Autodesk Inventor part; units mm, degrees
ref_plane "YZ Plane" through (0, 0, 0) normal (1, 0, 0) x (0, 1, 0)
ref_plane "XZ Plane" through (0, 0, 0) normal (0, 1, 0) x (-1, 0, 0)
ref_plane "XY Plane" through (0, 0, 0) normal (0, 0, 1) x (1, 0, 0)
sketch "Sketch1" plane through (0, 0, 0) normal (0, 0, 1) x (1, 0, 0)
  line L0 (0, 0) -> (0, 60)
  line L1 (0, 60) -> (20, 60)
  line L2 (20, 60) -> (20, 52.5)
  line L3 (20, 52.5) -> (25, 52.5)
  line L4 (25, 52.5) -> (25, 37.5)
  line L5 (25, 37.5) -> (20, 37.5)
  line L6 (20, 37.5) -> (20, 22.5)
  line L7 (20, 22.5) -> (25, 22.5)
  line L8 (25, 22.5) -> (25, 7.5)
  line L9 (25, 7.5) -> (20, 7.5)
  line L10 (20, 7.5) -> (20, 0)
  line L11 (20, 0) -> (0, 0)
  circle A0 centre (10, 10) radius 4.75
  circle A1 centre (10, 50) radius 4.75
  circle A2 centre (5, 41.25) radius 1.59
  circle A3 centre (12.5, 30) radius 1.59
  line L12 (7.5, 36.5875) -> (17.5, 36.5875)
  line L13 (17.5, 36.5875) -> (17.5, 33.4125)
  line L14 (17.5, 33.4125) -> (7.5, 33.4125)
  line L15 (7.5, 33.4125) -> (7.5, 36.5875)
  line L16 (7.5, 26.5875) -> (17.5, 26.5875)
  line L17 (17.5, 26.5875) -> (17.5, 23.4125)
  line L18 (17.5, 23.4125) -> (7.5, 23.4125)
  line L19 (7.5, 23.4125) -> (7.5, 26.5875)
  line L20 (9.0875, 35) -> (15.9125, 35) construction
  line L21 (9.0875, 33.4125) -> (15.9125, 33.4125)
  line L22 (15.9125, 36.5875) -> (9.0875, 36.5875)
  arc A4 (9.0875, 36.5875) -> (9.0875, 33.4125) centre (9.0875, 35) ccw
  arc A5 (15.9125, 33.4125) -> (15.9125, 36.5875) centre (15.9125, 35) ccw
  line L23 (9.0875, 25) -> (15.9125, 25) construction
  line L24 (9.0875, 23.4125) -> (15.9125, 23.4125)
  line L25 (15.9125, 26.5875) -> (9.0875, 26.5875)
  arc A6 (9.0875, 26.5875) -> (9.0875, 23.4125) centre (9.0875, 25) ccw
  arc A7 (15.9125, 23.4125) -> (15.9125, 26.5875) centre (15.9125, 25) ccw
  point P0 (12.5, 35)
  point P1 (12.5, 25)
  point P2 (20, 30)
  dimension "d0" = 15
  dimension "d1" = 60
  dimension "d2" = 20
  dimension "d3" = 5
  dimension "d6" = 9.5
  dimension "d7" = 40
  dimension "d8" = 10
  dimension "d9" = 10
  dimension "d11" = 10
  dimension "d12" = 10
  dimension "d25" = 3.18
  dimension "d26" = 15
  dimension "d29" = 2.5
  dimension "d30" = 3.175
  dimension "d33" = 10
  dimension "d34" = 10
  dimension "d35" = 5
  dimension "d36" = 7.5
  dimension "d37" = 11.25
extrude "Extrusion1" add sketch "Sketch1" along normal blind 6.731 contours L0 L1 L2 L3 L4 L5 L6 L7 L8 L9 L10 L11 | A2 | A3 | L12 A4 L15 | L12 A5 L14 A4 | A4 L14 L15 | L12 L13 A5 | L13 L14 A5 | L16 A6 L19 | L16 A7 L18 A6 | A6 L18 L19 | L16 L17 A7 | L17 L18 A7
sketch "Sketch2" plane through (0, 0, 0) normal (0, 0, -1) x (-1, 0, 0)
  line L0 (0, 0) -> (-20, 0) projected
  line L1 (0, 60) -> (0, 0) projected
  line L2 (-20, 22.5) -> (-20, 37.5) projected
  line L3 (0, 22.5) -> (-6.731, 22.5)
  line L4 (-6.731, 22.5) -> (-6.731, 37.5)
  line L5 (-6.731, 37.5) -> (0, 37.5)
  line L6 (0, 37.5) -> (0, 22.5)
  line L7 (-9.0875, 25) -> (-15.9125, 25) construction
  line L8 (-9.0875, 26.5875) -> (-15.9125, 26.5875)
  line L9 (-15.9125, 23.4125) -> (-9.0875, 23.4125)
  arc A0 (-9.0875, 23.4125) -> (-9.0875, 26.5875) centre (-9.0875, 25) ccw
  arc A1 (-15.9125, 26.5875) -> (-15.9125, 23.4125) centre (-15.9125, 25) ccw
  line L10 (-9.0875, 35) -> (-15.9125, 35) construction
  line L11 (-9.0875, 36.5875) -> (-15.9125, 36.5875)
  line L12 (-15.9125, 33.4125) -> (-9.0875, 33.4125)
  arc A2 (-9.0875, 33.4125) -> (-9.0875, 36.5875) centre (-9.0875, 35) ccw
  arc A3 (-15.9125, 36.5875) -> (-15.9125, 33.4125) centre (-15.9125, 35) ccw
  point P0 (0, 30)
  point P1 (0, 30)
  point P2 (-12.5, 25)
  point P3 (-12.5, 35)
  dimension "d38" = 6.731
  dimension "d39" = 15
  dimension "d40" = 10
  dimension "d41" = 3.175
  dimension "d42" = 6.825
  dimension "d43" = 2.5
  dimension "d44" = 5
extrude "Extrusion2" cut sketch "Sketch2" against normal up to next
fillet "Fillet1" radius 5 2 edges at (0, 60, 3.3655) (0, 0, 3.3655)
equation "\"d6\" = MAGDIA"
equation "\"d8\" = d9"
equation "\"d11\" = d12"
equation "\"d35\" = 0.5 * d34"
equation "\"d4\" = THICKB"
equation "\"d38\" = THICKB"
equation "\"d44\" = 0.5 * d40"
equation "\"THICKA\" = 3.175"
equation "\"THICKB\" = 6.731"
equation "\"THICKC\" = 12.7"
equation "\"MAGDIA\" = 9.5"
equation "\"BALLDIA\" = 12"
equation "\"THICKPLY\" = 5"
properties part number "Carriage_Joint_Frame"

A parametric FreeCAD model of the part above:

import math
import FreeCAD as App
import Part
import Sketcher


def edges_at(feature, points):
    """Names of the edges that pass closest to the given points."""
    edges = feature.Shape.Edges
    near = lambda p: min(range(len(edges)), key=lambda i: edges[i].distToShape(Part.Vertex(*p))[0])
    return sorted({f"Edge{near(p) + 1}" for p in points})


def add_polygon(sketch, points):
    """Adds a closed chain of lines whose ends are joined by coincident constraints."""
    first, n = sketch.GeometryCount, len(points)
    for a, b in zip(points, points[1:] + points[:1]):
        sketch.addGeometry(Part.LineSegment(App.Vector(*a, 0), App.Vector(*b, 0)), False)
    for i in range(n):
        sketch.addConstraint(Sketcher.Constraint("Coincident", first + i, 2, first + (i + 1) % n, 1))

doc = App.newDocument("Part")
body = doc.addObject("PartDesign::Body", "Body")

# Sketch on XY plane
sketch1 = body.newObject("Sketcher::SketchObject", "Sketch")
sketch1.AttachmentSupport = (doc.getObject("XY_Plane"), [""])
sketch1.MapMode = "FlatFace"
add_polygon(sketch1, [(0, 60), (0, 0), (20, 0), (20, 7.5), (25, 7.5), (25, 22.5), (20, 22.5), (20, 37.5), (25, 37.5), (25, 52.5), (20, 52.5), (20, 60)])  # lines 0-11
sketch1.addGeometry(Part.Circle(App.Vector(10, 10, 0), App.Vector(0, 0, 1), 4.8), False)  # 12
sketch1.addGeometry(Part.Circle(App.Vector(10, 50, 0), App.Vector(0, 0, 1), 4.8), False)  # 13
sketch1.addConstraint([
    Sketcher.Constraint("Vertical", 0),
    Sketcher.Constraint("Horizontal", 1),
    Sketcher.Constraint("Vertical", 2),
    Sketcher.Constraint("Horizontal", 3),
    Sketcher.Constraint("Vertical", 4),
    Sketcher.Constraint("Horizontal", 5),
    Sketcher.Constraint("Vertical", 6),
    Sketcher.Constraint("Horizontal", 7),
    Sketcher.Constraint("Vertical", 8),
    Sketcher.Constraint("Horizontal", 9),
    Sketcher.Constraint("Vertical", 10),
    Sketcher.Constraint("Horizontal", 11),
    Sketcher.Constraint("Coincident", 0, 2, -1, 1),
    Sketcher.Constraint("Equal", 12, 13),
    Sketcher.Constraint("Vertical", 12, 3, 13, 3),
    Sketcher.Constraint("Vertical", 2, 2, 5, 2),
    Sketcher.Constraint("Vertical", 4, 2, 7, 2),
    Sketcher.Constraint("Vertical", 6, 2, 9, 2),
    Sketcher.Constraint("Equal", 4, 6),
    Sketcher.Constraint("Equal", 6, 8),
    Sketcher.Constraint("Equal", 2, 10),
    Sketcher.Constraint("Diameter", 12, 9.5),
    Sketcher.Constraint("DistanceX", 1, 1, 1, 2, 20.0),
    Sketcher.Constraint("DistanceX", 3, 1, 3, 2, 5.0),
    Sketcher.Constraint("DistanceY", 0, 2, 0, 1, 60.0),
    Sketcher.Constraint("DistanceY", 4, 1, 4, 2, 15.0),
    Sketcher.Constraint("DistanceX", -1, 1, 12, 3, 10.0),
    Sketcher.Constraint("DistanceY", -1, 1, 12, 3, 10.0),
    Sketcher.Constraint("DistanceY", 12, 3, 13, 3, 40.0),
])
pad1 = body.newObject("PartDesign::Pad", "Pad")
pad1.Profile = sketch1
pad1.Length = 6.731

# Sketch on XY plane
sketch2 = body.newObject("Sketcher::SketchObject", "Sketch001")
sketch2.AttachmentSupport = (doc.getObject("XY_Plane"), [""])
sketch2.MapMode = "FlatFace"
add_polygon(sketch2, [(0, 22.5), (0, 37.5), (6.7, 37.5), (6.7, 22.5)])  # lines 0-3
sketch2.addGeometry(Part.ArcOfCircle(Part.Circle(App.Vector(9.1, 25, 0), App.Vector(0, 0, 1), 1.6), math.radians(90), math.radians(270)), False)  # 4
sketch2.addGeometry(Part.LineSegment(App.Vector(9.1, 26.6, 0), App.Vector(15.9, 26.6, 0)), False)  # 5
sketch2.addGeometry(Part.ArcOfCircle(Part.Circle(App.Vector(15.9, 25, 0), App.Vector(0, 0, 1), 1.6), math.radians(-90), math.radians(90)), False)  # 6
sketch2.addGeometry(Part.LineSegment(App.Vector(15.9, 23.4, 0), App.Vector(9.1, 23.4, 0)), False)  # 7
sketch2.addGeometry(Part.ArcOfCircle(Part.Circle(App.Vector(9.1, 35, 0), App.Vector(0, 0, 1), 1.6), math.radians(90), math.radians(270)), False)  # 8
sketch2.addGeometry(Part.LineSegment(App.Vector(9.1, 36.6, 0), App.Vector(15.9, 36.6, 0)), False)  # 9
sketch2.addGeometry(Part.ArcOfCircle(Part.Circle(App.Vector(15.9, 35, 0), App.Vector(0, 0, 1), 1.6), math.radians(-90), math.radians(90)), False)  # 10
sketch2.addGeometry(Part.LineSegment(App.Vector(15.9, 33.4, 0), App.Vector(9.1, 33.4, 0)), False)  # 11
sketch2.addConstraint([
    Sketcher.Constraint("Tangent", 4, 1, 5, 1),
    Sketcher.Constraint("Tangent", 5, 2, 6, 2),
    Sketcher.Constraint("Tangent", 6, 1, 7, 1),
    Sketcher.Constraint("Tangent", 7, 2, 4, 2),
    Sketcher.Constraint("Tangent", 8, 1, 9, 1),
    Sketcher.Constraint("Tangent", 9, 2, 10, 2),
    Sketcher.Constraint("Tangent", 10, 1, 11, 1),
    Sketcher.Constraint("Tangent", 11, 2, 8, 2),
    Sketcher.Constraint("Vertical", 0),
    Sketcher.Constraint("Horizontal", 1),
    Sketcher.Constraint("Vertical", 2),
    Sketcher.Constraint("Horizontal", 3),
    Sketcher.Constraint("Horizontal", 5),
    Sketcher.Constraint("Horizontal", 7),
    Sketcher.Constraint("Horizontal", 9),
    Sketcher.Constraint("Horizontal", 11),
    Sketcher.Constraint("Equal", 6, 8),
    Sketcher.Constraint("PointOnObject", 0, 2, -2),
    Sketcher.Constraint("Vertical", 4, 3, 8, 3),
    Sketcher.Constraint("Vertical", 6, 3, 10, 3),
    Sketcher.Constraint("DistanceY", 0, 1, 0, 2, 15.0),
    Sketcher.Constraint("DistanceY", 4, 3, 8, 3, 10.0),
    Sketcher.Constraint("Radius", 4, 1.5875),
    Sketcher.Constraint("DistanceY", 8, 3, 0, 2, 2.5),
    Sketcher.Constraint("DistanceX", 1, 1, 1, 2, 6.731),
    Sketcher.Constraint("DistanceX", 5, 1, 5, 2, 6.825),
    Sketcher.Constraint("DistanceY", -1, 1, 4, 3, 25.0),
    Sketcher.Constraint("DistanceX", -1, 1, 4, 3, 9.0875),
])
pocket1 = body.newObject("PartDesign::Pocket", "Pocket")
pocket1.Profile = sketch2
pocket1.Type = "UpToFirst"
pocket1.Reversed = True
doc.recompute()

fillet = body.newObject("PartDesign::Fillet", "Fillet")
fillet.Base = (pocket1, edges_at(pocket1, [(0, 60, 3.365), (0, 0, 3.365)]))
fillet.Radius = 5

doc.recompute()
